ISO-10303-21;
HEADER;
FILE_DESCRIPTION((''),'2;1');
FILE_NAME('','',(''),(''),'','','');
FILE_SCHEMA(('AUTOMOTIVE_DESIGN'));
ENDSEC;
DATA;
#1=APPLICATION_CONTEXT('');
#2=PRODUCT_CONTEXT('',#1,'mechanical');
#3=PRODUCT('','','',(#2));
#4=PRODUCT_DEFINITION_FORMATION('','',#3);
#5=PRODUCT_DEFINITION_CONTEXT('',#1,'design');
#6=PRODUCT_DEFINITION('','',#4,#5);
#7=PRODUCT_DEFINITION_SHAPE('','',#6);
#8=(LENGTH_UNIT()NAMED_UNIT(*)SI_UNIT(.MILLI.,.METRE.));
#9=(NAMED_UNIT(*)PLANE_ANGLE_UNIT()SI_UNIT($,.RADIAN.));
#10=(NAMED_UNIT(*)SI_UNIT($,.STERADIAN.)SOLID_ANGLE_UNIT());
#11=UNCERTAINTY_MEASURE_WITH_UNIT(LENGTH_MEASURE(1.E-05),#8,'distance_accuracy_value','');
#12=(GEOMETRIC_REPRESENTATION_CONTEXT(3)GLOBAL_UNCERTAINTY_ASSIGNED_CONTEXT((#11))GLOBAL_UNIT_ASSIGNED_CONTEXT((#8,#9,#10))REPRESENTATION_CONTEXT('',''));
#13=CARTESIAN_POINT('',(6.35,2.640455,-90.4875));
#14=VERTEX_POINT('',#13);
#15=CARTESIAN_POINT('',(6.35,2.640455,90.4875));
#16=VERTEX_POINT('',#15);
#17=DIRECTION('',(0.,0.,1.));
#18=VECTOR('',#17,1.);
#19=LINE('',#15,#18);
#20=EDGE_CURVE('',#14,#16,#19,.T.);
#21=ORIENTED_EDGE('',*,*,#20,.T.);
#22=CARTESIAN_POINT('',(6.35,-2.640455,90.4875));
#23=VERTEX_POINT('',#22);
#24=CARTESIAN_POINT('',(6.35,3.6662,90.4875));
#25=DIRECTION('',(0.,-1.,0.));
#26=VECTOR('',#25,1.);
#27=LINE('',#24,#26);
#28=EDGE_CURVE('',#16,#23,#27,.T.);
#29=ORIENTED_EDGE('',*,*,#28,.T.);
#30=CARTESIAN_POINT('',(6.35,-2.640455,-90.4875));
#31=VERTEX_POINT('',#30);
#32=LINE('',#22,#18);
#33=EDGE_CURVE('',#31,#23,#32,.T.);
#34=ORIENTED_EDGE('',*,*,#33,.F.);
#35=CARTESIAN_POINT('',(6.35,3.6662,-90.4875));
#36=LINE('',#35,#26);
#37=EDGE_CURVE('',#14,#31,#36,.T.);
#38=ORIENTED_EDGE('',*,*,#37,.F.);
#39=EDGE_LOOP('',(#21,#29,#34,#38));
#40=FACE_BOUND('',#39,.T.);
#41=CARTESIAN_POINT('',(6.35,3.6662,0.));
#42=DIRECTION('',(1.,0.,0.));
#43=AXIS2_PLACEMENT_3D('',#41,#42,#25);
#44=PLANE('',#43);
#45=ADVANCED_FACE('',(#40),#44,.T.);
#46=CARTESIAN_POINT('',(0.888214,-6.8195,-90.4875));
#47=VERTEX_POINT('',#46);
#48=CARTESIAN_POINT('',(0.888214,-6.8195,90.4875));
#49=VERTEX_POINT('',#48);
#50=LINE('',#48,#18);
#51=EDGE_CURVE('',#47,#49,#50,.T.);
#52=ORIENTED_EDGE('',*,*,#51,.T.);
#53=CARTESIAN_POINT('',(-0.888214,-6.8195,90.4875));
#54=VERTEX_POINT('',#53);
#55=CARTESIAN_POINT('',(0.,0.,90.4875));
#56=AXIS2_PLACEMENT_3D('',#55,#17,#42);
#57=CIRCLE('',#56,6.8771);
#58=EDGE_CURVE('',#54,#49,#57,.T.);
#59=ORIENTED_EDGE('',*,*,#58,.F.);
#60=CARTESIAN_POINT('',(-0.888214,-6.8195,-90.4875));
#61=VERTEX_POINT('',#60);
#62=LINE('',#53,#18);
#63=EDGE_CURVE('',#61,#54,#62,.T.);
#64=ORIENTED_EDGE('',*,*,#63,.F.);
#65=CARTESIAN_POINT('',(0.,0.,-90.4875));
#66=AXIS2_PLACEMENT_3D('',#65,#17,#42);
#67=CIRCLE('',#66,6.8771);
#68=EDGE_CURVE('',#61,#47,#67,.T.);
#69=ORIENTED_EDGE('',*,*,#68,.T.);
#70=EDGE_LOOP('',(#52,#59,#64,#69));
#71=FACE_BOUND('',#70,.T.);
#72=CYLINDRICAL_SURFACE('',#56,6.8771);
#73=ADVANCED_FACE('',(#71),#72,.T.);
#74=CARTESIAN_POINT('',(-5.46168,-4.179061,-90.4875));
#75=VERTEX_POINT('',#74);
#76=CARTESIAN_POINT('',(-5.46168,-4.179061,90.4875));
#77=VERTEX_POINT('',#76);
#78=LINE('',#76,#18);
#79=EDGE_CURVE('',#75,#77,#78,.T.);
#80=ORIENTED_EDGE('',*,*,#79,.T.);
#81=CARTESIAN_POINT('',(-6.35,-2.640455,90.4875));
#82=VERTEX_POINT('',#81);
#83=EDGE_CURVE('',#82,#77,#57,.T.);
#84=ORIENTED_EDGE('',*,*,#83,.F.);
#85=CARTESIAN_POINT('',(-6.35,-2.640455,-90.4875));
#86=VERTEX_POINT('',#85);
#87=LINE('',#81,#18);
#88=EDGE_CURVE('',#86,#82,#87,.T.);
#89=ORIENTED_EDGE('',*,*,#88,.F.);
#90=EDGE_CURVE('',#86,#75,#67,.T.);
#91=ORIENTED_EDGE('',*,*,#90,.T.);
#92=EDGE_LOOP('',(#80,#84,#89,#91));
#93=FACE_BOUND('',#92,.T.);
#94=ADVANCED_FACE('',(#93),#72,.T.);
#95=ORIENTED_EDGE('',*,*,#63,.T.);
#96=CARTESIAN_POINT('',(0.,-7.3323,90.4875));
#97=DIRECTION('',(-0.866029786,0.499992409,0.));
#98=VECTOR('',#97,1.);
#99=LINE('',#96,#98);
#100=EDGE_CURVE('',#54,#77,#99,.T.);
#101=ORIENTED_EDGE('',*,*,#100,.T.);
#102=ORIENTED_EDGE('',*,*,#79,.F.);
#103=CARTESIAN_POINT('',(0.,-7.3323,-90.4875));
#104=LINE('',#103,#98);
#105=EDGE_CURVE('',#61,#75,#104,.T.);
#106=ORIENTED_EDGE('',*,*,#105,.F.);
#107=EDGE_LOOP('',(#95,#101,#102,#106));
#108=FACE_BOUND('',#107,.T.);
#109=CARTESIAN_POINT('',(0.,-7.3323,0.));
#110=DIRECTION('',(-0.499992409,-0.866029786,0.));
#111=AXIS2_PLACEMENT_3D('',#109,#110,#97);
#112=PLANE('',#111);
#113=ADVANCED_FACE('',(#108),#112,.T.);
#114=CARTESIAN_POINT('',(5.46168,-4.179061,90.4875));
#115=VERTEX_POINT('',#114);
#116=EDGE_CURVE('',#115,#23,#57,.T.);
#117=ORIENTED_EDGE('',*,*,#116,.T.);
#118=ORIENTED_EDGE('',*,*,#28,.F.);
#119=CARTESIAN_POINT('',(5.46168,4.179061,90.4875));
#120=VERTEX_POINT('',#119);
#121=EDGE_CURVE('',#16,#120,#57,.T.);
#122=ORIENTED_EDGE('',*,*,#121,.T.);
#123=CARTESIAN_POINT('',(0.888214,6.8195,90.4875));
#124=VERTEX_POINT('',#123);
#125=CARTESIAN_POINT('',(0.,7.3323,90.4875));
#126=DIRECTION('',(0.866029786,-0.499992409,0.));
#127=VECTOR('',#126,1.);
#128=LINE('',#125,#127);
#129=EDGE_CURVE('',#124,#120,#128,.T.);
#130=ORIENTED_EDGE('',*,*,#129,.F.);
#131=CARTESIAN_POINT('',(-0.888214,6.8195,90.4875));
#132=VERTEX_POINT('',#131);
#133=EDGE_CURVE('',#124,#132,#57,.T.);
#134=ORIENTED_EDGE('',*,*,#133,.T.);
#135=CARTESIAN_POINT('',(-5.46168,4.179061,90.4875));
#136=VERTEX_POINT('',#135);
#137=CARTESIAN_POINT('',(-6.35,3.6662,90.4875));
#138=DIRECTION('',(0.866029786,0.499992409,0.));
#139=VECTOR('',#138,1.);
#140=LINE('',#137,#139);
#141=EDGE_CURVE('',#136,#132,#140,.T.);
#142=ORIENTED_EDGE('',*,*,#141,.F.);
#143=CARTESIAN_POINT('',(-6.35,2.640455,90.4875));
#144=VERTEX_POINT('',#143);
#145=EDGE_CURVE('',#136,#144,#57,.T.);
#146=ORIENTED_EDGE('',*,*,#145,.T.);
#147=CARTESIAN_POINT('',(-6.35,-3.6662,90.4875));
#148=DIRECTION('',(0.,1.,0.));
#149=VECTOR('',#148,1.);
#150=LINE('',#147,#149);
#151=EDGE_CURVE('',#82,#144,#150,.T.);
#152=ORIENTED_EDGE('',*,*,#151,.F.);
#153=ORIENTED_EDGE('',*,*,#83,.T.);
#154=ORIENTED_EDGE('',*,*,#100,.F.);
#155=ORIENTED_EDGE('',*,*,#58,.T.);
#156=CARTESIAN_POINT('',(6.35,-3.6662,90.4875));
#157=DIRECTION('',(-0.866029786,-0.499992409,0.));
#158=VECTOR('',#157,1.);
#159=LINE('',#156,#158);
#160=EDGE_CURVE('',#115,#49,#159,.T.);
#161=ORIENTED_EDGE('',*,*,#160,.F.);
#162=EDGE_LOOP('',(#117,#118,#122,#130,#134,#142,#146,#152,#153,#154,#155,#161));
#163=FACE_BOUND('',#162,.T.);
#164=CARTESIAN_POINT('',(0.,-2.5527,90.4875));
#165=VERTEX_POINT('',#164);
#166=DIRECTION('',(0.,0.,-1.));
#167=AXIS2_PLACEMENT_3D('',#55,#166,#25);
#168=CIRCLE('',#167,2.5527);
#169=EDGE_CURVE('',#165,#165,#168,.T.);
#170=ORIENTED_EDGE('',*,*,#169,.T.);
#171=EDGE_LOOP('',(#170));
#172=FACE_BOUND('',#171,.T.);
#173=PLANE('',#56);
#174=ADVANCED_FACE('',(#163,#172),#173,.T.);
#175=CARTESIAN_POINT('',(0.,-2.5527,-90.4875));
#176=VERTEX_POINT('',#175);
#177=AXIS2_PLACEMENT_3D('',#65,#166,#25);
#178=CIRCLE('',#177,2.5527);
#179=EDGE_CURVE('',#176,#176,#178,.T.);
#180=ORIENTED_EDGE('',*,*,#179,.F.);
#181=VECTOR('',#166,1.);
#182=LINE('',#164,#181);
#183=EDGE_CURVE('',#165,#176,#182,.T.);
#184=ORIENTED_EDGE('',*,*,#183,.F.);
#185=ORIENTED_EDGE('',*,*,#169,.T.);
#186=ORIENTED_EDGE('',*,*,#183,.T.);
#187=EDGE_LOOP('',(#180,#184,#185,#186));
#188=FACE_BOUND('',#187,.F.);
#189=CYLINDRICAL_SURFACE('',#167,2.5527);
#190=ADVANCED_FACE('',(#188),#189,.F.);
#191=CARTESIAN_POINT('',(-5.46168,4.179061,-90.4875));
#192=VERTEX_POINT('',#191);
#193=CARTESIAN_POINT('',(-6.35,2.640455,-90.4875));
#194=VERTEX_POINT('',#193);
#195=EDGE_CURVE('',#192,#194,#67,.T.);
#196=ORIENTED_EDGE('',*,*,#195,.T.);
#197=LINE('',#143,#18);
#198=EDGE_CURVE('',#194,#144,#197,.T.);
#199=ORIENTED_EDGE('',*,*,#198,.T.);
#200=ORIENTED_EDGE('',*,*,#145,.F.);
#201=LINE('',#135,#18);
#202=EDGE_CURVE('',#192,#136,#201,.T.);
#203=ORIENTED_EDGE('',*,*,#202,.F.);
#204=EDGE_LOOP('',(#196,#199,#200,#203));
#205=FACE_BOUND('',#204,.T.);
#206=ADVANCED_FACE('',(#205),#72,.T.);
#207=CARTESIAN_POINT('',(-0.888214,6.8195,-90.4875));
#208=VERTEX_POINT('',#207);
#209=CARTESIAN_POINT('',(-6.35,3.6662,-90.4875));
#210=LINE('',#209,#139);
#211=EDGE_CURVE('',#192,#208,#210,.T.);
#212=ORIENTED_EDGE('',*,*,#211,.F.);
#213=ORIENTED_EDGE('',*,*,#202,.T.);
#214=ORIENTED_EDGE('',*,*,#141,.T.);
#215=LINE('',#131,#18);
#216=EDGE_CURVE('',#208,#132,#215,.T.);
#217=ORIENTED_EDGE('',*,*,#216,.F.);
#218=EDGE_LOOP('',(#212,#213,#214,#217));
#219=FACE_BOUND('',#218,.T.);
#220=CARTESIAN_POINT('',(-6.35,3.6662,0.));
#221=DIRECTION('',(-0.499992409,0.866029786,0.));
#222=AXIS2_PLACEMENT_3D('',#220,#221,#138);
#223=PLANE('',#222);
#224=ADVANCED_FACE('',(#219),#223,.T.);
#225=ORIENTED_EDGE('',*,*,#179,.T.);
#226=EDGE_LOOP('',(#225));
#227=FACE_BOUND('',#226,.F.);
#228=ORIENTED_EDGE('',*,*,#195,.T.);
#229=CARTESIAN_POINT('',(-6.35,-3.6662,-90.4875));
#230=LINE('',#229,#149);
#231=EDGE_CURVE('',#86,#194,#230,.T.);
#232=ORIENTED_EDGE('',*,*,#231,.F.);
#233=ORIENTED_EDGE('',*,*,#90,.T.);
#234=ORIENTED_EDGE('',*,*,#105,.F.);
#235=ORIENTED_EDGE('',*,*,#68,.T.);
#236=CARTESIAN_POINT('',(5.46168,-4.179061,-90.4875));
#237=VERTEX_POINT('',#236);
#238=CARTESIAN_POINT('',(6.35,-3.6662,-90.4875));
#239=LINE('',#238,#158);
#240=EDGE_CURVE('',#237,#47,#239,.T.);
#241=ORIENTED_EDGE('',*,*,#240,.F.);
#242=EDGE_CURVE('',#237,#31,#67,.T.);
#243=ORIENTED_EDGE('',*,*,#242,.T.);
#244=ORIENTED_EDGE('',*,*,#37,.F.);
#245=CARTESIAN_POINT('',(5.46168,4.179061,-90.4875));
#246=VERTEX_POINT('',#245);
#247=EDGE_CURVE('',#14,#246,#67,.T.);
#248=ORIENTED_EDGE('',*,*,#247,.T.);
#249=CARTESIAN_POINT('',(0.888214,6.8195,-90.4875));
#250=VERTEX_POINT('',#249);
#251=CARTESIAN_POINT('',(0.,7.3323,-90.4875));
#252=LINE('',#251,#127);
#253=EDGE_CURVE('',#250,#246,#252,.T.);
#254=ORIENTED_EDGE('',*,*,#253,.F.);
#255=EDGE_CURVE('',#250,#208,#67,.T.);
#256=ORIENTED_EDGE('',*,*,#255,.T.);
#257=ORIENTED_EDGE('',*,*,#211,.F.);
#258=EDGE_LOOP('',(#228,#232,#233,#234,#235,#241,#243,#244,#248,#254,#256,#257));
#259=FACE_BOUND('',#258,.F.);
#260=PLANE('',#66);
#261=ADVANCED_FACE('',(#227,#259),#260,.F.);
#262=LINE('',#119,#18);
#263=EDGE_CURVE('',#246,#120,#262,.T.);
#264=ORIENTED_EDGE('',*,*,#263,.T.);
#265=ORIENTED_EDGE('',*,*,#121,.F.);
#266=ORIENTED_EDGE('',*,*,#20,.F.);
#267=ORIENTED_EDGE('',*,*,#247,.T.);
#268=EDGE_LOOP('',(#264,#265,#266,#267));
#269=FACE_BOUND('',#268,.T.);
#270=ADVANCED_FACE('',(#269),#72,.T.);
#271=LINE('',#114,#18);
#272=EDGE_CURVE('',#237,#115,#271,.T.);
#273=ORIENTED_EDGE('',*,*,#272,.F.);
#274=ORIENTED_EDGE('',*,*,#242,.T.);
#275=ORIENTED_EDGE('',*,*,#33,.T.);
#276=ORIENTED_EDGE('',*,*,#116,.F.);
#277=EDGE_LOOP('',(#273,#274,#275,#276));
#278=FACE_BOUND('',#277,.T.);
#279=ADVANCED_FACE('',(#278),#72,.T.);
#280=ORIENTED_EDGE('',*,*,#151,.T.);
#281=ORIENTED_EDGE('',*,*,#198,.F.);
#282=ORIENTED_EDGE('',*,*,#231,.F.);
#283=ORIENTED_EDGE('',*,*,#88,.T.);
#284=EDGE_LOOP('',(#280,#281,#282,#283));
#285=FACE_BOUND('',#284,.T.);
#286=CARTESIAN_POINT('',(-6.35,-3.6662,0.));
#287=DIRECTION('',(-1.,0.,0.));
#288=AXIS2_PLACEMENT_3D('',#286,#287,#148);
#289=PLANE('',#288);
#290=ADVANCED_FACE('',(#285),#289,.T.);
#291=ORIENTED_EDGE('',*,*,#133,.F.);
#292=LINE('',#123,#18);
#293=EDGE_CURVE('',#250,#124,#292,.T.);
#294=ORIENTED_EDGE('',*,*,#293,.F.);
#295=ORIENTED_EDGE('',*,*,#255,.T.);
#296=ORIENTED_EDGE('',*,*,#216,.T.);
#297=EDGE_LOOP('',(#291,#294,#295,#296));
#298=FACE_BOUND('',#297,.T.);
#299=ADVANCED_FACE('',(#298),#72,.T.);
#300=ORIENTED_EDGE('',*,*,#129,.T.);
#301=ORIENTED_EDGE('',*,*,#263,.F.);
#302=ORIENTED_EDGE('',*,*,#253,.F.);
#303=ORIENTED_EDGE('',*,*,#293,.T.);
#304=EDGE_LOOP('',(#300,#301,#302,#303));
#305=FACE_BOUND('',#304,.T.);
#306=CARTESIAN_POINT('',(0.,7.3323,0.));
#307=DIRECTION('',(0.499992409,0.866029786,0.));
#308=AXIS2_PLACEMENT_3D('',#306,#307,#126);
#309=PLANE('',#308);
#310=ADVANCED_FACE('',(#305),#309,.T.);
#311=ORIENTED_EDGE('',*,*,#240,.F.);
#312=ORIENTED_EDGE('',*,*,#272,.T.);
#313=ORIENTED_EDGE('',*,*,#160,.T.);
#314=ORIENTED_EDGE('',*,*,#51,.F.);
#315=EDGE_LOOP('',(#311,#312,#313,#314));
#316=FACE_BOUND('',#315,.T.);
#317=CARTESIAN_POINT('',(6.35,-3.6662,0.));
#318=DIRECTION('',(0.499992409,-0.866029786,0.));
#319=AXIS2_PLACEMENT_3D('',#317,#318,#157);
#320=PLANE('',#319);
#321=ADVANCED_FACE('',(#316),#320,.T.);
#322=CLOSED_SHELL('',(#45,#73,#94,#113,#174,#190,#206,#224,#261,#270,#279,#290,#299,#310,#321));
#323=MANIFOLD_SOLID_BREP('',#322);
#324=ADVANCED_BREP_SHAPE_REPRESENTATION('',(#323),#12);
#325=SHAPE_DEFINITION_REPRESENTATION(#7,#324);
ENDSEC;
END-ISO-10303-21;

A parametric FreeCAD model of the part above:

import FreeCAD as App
import Part
import Sketcher
Q = App.Units.Quantity

doc = App.newDocument("Part")
body = doc.addObject("PartDesign::Body", "Body")

# Sketch on XY plane
sketch1 = body.newObject("Sketcher::SketchObject", "Sketch")
sketch1.AttachmentSupport = (doc.getObject("XY_Plane"), [""])
sketch1.MapMode = "FlatFace"
sketch1.addGeometry([
    Part.LineSegment(App.Vector(-6, 4, 0), App.Vector(-6, -4, 0)),  # 0
    Part.LineSegment(App.Vector(-6, -4, 0), App.Vector(0, -7, 0)),  # 1
    Part.LineSegment(App.Vector(0, -7, 0), App.Vector(6, -4, 0)),  # 2
    Part.LineSegment(App.Vector(6, -4, 0), App.Vector(6, 4, 0)),  # 3
    Part.LineSegment(App.Vector(6, 4, 0), App.Vector(0, 7, 0)),  # 4
    Part.LineSegment(App.Vector(0, 7, 0), App.Vector(-6, 4, 0)),  # 5
], False)
sketch1.addConstraint([
    Sketcher.Constraint("Coincident", 0, 2, 1, 1),
    Sketcher.Constraint("Coincident", 1, 2, 2, 1),
    Sketcher.Constraint("Coincident", 2, 2, 3, 1),
    Sketcher.Constraint("Coincident", 3, 2, 4, 1),
    Sketcher.Constraint("Coincident", 4, 2, 5, 1),
    Sketcher.Constraint("Coincident", 5, 2, 0, 1),
    Sketcher.Constraint("Vertical", 0),
    Sketcher.Constraint("Vertical", 3),
    Sketcher.Constraint("Symmetric", 0, 2, 3, 2, -1, 1),
    Sketcher.Constraint("Symmetric", 1, 2, 4, 2, -1, 1),
    Sketcher.Constraint("PointOnObject", 1, 2, -2),
    Sketcher.Constraint("Parallel", 2, 5),
    Sketcher.Constraint("Horizontal", 0, 2, 2, 2),
    Sketcher.Constraint("DistanceX", 0, 2, 2, 2, Q("0.5 in")),
    Sketcher.Constraint("Angle", 1, Q("-29.9995 deg")),
    Sketcher.Constraint("DistanceY", 1, 2, 3, 2, Q("0.433 in")),
])
pad1 = body.newObject("PartDesign::Pad", "Pad")
pad1.Profile = sketch1
pad1.Length = Q("7.125 in")
pad1.Midplane = True

# Sketch on XY plane
sketch2 = body.newObject("Sketcher::SketchObject", "Sketch001")
sketch2.AttachmentSupport = (doc.getObject("XY_Plane"), [""])
sketch2.MapMode = "FlatFace"
sketch2.AttachmentOffset = App.Placement(App.Vector(0, 0, 3.5625 * 25.4), App.Rotation())
sketch2.addGeometry(Part.Circle(App.Vector(0, 0, 0), App.Vector(0, 0, 1), 2.6), False)
sketch2.addConstraint([
    Sketcher.Constraint("Coincident", 0, 3, -1, 1),
    Sketcher.Constraint("Diameter", 0, Q("0.201 in")),
])
doc.recompute()
hole = body.newObject("PartDesign::Hole", "Hole")
hole.Profile = sketch2
hole.ThreadType = "None"
hole.Diameter = Q("0.201 in")
hole.DepthType = "ThroughAll"

# Sketch on XY plane
sketch3 = body.newObject("Sketcher::SketchObject", "Sketch002")
sketch3.AttachmentSupport = (doc.getObject("XY_Plane"), [""])
sketch3.MapMode = "FlatFace"
sketch3.AttachmentOffset = App.Placement(App.Vector(0, 0, 3.5625 * 25.4), App.Rotation())
sketch3.addGeometry([
    Part.Circle(App.Vector(0, 0, 0), App.Vector(0, 0, 1), 9),
    Part.Circle(App.Vector(0, 0, 0), App.Vector(0, 0, 1), 7),
], False)
sketch3.addConstraint([
    Sketcher.Constraint("Coincident", 0, 3, -1, 1),
    Sketcher.Constraint("Coincident", 1, 3, -1, 1),
    Sketcher.Constraint("Diameter", 0, Q("0.7 in")),
    Sketcher.Constraint("Diameter", 1, Q("0.5415 in")),
])
pocket1 = body.newObject("PartDesign::Pocket", "Pocket")
pocket1.Profile = sketch3
pocket1.Type = "ThroughAll"

doc.recompute()
